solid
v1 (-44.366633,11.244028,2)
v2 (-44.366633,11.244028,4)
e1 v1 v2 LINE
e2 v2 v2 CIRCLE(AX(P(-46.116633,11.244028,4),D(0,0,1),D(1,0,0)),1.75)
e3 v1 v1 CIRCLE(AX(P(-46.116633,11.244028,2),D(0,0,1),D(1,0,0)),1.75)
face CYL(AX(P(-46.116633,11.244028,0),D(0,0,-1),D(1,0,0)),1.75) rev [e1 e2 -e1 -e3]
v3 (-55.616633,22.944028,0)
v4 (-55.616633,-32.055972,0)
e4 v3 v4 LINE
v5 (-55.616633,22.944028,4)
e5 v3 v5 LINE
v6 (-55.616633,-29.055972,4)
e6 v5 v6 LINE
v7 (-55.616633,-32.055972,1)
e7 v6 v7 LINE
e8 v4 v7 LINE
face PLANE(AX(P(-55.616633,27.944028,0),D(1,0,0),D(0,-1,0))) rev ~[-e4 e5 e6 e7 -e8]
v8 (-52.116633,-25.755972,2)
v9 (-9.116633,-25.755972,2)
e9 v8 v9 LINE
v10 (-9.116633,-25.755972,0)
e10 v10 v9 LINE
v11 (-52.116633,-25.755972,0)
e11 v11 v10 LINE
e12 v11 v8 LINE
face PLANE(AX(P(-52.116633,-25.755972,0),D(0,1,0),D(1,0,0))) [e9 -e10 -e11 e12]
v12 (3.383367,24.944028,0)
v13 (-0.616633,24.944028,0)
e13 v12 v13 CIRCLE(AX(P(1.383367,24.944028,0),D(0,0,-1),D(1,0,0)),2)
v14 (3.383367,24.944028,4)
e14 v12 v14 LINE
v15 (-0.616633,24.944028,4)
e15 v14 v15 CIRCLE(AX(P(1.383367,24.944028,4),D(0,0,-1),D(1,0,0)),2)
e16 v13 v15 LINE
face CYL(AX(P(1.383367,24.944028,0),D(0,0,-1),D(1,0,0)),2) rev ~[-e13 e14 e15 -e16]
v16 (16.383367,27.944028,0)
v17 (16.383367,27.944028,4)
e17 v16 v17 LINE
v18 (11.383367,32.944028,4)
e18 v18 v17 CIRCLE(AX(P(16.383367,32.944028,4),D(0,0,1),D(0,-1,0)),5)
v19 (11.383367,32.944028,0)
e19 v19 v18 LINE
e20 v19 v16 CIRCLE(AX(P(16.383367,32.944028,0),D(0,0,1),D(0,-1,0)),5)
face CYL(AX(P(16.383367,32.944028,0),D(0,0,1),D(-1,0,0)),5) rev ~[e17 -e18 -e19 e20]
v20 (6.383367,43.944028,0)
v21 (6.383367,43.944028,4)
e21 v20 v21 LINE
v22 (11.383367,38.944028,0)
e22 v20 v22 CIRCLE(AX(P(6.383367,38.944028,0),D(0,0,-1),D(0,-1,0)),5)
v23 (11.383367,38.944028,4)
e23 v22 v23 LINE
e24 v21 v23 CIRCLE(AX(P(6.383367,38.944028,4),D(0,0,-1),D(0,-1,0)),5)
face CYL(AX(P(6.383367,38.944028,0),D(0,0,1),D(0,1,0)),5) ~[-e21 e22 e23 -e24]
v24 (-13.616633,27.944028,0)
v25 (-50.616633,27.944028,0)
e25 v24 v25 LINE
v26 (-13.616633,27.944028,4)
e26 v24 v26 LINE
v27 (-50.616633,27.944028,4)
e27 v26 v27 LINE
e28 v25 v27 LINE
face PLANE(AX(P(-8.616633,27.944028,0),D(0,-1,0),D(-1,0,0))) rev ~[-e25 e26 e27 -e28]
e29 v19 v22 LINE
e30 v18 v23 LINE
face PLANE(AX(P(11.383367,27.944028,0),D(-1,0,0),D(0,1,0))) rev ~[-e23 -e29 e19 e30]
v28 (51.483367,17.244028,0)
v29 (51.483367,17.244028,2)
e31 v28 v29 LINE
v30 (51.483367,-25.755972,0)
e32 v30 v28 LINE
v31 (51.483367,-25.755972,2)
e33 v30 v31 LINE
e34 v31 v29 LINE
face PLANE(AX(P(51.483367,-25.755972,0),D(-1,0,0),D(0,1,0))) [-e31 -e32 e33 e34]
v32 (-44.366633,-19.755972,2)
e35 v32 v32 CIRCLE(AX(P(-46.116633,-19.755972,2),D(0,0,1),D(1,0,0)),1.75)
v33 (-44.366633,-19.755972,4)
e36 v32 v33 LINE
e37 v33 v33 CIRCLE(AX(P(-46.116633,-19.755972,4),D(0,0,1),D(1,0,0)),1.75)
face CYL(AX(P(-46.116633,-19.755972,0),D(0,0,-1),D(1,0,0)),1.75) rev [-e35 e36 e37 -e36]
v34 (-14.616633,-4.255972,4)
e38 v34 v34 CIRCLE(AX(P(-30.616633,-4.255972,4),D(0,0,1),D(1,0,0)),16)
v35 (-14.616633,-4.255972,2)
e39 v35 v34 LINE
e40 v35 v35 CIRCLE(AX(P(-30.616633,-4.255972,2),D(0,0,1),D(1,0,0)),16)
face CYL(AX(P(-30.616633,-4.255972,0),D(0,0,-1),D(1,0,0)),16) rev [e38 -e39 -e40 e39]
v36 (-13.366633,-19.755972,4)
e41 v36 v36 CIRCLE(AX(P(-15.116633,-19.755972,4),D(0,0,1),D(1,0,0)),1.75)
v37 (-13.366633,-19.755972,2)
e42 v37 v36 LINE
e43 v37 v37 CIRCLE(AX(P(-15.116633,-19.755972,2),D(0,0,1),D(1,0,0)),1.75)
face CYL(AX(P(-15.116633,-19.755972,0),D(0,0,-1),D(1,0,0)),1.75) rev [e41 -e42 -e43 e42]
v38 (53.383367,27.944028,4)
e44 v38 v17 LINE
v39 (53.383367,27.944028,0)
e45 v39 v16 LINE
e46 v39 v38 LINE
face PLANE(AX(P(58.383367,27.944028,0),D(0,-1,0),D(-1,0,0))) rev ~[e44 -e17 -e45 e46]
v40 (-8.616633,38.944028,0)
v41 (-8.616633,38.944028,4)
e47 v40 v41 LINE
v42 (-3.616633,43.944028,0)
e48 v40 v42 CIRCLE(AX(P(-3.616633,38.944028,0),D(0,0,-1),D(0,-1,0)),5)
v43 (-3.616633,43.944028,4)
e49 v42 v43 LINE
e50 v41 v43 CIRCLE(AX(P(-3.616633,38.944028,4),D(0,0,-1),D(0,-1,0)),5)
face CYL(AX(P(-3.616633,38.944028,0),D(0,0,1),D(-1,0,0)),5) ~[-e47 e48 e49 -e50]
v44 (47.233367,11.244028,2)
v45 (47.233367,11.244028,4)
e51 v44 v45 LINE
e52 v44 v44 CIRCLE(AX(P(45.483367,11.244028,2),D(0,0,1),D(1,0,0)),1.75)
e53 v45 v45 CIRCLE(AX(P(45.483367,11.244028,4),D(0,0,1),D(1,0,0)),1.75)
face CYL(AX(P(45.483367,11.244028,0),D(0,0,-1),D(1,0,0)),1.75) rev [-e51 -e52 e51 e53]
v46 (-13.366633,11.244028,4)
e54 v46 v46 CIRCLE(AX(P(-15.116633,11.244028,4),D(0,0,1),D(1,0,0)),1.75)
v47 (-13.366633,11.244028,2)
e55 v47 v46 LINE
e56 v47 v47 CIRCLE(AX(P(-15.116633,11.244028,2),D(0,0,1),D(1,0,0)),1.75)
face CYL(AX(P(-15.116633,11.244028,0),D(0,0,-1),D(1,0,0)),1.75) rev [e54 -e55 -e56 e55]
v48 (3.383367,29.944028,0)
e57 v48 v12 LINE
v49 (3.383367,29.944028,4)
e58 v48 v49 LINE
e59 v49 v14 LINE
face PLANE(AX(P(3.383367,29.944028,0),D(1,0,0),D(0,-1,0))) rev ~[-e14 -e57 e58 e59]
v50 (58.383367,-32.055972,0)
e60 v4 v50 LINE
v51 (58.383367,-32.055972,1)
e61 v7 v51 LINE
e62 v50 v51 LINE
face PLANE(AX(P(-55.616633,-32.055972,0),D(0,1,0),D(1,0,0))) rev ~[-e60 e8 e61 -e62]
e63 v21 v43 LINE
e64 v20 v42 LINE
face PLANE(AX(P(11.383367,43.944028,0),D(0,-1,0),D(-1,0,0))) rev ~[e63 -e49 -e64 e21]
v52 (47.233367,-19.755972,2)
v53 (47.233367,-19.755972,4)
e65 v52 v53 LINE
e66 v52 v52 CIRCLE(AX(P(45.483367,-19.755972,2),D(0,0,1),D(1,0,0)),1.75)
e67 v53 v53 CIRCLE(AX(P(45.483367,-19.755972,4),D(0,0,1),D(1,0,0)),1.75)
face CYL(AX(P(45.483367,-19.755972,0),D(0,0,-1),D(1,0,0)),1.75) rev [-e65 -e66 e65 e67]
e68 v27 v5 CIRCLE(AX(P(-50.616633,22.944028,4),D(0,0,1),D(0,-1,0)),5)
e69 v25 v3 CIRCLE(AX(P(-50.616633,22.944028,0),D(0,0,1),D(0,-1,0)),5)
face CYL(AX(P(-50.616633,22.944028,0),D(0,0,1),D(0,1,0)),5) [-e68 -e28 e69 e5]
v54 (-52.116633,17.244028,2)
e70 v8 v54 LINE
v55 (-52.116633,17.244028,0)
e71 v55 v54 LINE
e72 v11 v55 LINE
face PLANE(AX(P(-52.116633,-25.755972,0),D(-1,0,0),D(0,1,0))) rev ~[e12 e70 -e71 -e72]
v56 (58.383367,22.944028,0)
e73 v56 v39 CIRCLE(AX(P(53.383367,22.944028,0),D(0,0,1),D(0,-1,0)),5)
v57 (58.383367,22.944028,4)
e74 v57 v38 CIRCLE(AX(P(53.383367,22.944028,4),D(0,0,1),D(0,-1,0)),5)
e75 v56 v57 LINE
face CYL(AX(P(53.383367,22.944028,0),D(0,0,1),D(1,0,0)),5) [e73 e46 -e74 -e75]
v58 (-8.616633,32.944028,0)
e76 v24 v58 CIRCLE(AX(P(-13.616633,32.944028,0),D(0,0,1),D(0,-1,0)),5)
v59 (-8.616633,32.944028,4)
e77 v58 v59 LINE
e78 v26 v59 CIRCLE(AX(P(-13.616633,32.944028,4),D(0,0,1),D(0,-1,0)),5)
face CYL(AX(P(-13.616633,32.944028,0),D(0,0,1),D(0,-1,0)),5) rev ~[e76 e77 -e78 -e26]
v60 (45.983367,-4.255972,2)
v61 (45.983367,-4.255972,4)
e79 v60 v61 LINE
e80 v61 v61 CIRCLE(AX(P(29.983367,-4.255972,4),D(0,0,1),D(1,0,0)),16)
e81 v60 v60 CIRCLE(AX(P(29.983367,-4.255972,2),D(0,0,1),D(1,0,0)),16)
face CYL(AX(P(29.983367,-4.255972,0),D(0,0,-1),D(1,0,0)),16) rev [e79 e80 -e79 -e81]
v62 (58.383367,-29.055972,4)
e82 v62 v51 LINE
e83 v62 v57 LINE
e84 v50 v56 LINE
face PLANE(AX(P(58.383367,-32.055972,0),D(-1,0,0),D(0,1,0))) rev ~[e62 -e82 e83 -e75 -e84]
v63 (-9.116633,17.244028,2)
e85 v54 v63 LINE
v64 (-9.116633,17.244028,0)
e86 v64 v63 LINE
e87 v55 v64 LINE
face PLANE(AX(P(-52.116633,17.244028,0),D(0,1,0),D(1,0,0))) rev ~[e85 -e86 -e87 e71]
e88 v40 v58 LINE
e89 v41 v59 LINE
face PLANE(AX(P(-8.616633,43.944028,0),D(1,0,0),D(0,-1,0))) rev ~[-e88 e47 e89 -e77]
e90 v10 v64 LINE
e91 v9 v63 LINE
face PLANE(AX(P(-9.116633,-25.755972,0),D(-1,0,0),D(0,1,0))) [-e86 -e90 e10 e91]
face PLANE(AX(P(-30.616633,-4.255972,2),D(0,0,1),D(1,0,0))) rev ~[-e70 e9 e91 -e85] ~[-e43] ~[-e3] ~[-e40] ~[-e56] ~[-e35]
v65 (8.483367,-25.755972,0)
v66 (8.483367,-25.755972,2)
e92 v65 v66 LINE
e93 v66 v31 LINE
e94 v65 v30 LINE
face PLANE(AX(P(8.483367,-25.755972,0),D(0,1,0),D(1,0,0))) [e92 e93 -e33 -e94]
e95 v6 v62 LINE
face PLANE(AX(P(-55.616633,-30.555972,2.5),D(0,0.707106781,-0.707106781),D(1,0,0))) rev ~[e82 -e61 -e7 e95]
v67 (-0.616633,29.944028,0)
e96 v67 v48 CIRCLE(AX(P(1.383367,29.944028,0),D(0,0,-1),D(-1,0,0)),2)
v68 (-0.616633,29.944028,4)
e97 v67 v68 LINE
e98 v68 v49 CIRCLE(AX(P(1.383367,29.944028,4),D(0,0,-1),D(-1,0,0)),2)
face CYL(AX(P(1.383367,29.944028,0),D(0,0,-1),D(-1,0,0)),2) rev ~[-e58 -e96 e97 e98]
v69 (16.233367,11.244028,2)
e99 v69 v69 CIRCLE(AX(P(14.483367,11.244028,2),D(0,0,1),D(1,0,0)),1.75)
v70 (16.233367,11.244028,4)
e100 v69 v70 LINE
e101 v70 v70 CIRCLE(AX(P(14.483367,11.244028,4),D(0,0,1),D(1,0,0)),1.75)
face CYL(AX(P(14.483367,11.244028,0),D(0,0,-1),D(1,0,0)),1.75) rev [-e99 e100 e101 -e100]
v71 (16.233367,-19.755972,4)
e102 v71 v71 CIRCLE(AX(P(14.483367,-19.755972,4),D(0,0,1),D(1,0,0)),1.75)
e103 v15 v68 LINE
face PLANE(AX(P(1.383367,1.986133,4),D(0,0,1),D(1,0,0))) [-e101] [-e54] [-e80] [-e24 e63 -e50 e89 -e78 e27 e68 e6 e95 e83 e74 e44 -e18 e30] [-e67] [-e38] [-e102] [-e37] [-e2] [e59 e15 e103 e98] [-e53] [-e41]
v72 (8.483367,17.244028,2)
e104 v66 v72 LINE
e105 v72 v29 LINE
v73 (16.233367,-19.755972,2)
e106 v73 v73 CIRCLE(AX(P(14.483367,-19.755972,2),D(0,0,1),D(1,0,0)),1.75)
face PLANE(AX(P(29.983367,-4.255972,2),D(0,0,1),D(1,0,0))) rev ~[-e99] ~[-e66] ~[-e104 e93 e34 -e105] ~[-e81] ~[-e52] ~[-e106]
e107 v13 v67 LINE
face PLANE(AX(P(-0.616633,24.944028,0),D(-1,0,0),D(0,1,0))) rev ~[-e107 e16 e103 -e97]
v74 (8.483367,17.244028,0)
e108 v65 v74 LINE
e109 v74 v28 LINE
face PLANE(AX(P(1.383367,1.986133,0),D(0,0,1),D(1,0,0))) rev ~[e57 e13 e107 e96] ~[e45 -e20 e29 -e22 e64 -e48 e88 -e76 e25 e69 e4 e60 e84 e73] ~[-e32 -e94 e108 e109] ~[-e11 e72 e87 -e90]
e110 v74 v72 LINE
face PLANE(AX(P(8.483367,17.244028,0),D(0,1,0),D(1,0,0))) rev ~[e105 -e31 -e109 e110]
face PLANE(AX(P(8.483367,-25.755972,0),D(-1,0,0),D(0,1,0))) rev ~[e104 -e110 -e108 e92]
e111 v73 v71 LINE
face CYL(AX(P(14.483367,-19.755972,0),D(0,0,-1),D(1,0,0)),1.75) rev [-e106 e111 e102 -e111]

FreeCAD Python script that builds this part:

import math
import FreeCAD as App
import Part
import Sketcher
from FreeCAD import Vector


def edges_at(feature, points):
    """Names of the edges that pass closest to the given points."""
    edges = feature.Shape.Edges
    near = lambda p: min(range(len(edges)), key=lambda i: edges[i].distToShape(Part.Vertex(*p))[0])
    return sorted({f"Edge{near(p) + 1}" for p in points})


def add_polygon(sketch, points):
    """Adds a closed chain of lines whose ends are joined by coincident constraints."""
    first, n = sketch.GeometryCount, len(points)
    for a, b in zip(points, points[1:] + points[:1]):
        sketch.addGeometry(Part.LineSegment(App.Vector(*a, 0), App.Vector(*b, 0)), False)
    for i in range(n):
        sketch.addConstraint(Sketcher.Constraint("Coincident", first + i, 2, first + (i + 1) % n, 1))

doc = App.newDocument("Part")
body = doc.addObject("PartDesign::Body", "Body")

sketch1 = body.newObject("Sketcher::SketchObject", "Sketch")
sketch1.AttachmentSupport = (doc.getObject("XY_Plane"), [""])
sketch1.MapMode = "FlatFace"
add_polygon(sketch1, [(-8.616633, 27.944028), (-55.616633, 27.944028), (-55.616633, -32.055972), (58.383367, -32.055972), (58.383367, 27.944028), (11.383367, 27.944028), (11.383367, 43.944028), (-8.616633, 43.944028)])
sketch1.addGeometry(Part.Circle(Vector(-46.116633, -19.755972, 0), Vector(0, 0, 1), 1.75), False)
sketch1.addGeometry(Part.Circle(Vector(-15.116633, -19.755972, 0), Vector(0, 0, 1), 1.75), False)
sketch1.addGeometry(Part.Circle(Vector(-30.616633, -4.255972, 0), Vector(0, 0, 1), 16), False)
sketch1.addGeometry(Part.Circle(Vector(14.483367, -19.755972, 0), Vector(0, 0, 1), 1.75), False)
sketch1.addGeometry(Part.Circle(Vector(45.483367, -19.755972, 0), Vector(0, 0, 1), 1.75), False)
sketch1.addGeometry(Part.Circle(Vector(29.983367, -4.255972, 0), Vector(0, 0, 1), 16), False)
sketch1.addGeometry(Part.Circle(Vector(-46.116633, 11.244028, 0), Vector(0, 0, 1), 1.75), False)
sketch1.addGeometry(Part.Circle(Vector(-15.116633, 11.244028, 0), Vector(0, 0, 1), 1.75), False)
sketch1.addGeometry(Part.Circle(Vector(14.483367, 11.244028, 0), Vector(0, 0, 1), 1.75), False)
sketch1.addGeometry(Part.Circle(Vector(45.483367, 11.244028, 0), Vector(0, 0, 1), 1.75), False)
sketch1.addGeometry(Part.LineSegment(Vector(-0.616633, 24.944028, 0), Vector(-0.616633, 29.944028, 0)), False)
sketch1.addGeometry(Part.ArcOfCircle(Part.Circle(Vector(1.383367, 29.944028, 0), Vector(0, 0, 1), 2), math.radians(0), math.radians(180)), False)
sketch1.addGeometry(Part.LineSegment(Vector(3.383367, 29.944028, 0), Vector(3.383367, 24.944028, 0)), False)
sketch1.addGeometry(Part.ArcOfCircle(Part.Circle(Vector(1.383367, 24.944028, 0), Vector(0, 0, 1), 2), math.radians(180), math.radians(360)), False)
sketch1.addConstraint([
    Sketcher.Constraint("Tangent", 18, 2, 19, 2),
    Sketcher.Constraint("Tangent", 19, 1, 20, 1),
    Sketcher.Constraint("Tangent", 20, 2, 21, 2),
    Sketcher.Constraint("Tangent", 21, 1, 18, 1),
    Sketcher.Constraint("Horizontal", 0),
    Sketcher.Constraint("Vertical", 1),
    Sketcher.Constraint("Horizontal", 2),
    Sketcher.Constraint("Vertical", 3),
    Sketcher.Constraint("Horizontal", 4),
    Sketcher.Constraint("Vertical", 5),
    Sketcher.Constraint("Horizontal", 6),
    Sketcher.Constraint("Vertical", 7),
    Sketcher.Constraint("Vertical", 18),
    Sketcher.Constraint("Vertical", 20),
    Sketcher.Constraint("Equal", 8, 9),
    Sketcher.Constraint("Equal", 9, 11),
    Sketcher.Constraint("Equal", 11, 12),
    Sketcher.Constraint("Equal", 10, 13),
    Sketcher.Constraint("Equal", 12, 14),
    Sketcher.Constraint("Equal", 14, 15),
    Sketcher.Constraint("Equal", 15, 16),
    Sketcher.Constraint("Equal", 16, 17),
    Sketcher.Constraint("Horizontal", 8, 3, 9, 3),
    Sketcher.Constraint("Horizontal", 9, 3, 11, 3),
    Sketcher.Constraint("Horizontal", 11, 3, 12, 3),
    Sketcher.Constraint("Horizontal", 10, 3, 13, 3),
    Sketcher.Constraint("Horizontal", 14, 3, 15, 3),
    Sketcher.Constraint("Horizontal", 15, 3, 16, 3),
    Sketcher.Constraint("Horizontal", 16, 3, 17, 3),
    Sketcher.Constraint("Horizontal", 0, 2, 3, 2),
    Sketcher.Constraint("Vertical", 8, 3, 14, 3),
    Sketcher.Constraint("Vertical", 9, 3, 15, 3),
    Sketcher.Constraint("Vertical", 11, 3, 16, 3),
    Sketcher.Constraint("Vertical", 12, 3, 17, 3),
    Sketcher.Constraint("Equal", 0, 4),
    Sketcher.Constraint("Diameter", 10, 32.0),
    Sketcher.Constraint("Radius", 19, 2.0),
    Sketcher.Constraint("Diameter", 8, 3.5),
    Sketcher.Constraint("DistanceX", 0, 2, 0, 1, 47.0),
    Sketcher.Constraint("DistanceX", 2, 1, 2, 2, 114.0),
    Sketcher.Constraint("DistanceY", 1, 2, 1, 1, 60.0),
    Sketcher.Constraint("DistanceY", 5, 1, 5, 2, 16.0),
    Sketcher.Constraint("DistanceY", 18, 1, 18, 2, 5.0),
    Sketcher.Constraint("DistanceX", 8, 3, 9, 3, 31.0),
    Sketcher.Constraint("DistanceX", 11, 3, 12, 3, 31.0),
    Sketcher.Constraint("DistanceY", 8, 3, 14, 3, 31.0),
    Sketcher.Constraint("DistanceX", 10, 3, 19, 3, 32.0),
    Sketcher.Constraint("DistanceX", 0, 2, 10, 3, 25.0),
    Sketcher.Constraint("DistanceY", 0, 2, 19, 3, 2.0),
    Sketcher.Constraint("DistanceX", 10, 3, 9, 3, 15.5),
    Sketcher.Constraint("DistanceY", 9, 3, 10, 3, 15.5),
    Sketcher.Constraint("DistanceX", 9, 3, 11, 3, 29.6),
    Sketcher.Constraint("DistanceX", 11, 3, 13, 3, 15.5),
    Sketcher.Constraint("DistanceY", 16, 3, 19, 3, 18.7),
    Sketcher.Constraint("DistanceX", 8, 3, -1, 1, 46.116633),
    Sketcher.Constraint("DistanceY", 8, 3, -1, 1, 19.755972),
])
pad1 = body.newObject("PartDesign::Pad", "Pad")
pad1.Profile = sketch1
pad1.Length = 4
doc.recompute()

fillet = body.newObject("PartDesign::Fillet", "Fillet")
fillet.Base = (pad1, edges_at(pad1, [
    (-8.617, 43.944, 2),
    (-8.617, 27.944, 2),
    (-55.617, 27.944, 2),
    (11.383, 43.944, 2),
    (11.383, 27.944, 2),
    (58.383, 27.944, 2),
]))
fillet.Radius = 5
doc.recompute()

chamfer = body.newObject("PartDesign::Chamfer", "Chamfer")
chamfer.Base = (fillet, edges_at(fillet, [(1.383, -32.056, 4)]))
chamfer.Size = 3

sketch2 = body.newObject("Sketcher::SketchObject", "Sketch001")
sketch2.AttachmentSupport = (doc.getObject("XY_Plane"), [""])
sketch2.MapMode = "FlatFace"
add_polygon(sketch2, [(-52.116633, 17.244028), (-52.116633, -25.755972), (-9.116633, -25.755972), (-9.116633, 17.244028)])
sketch2.addGeometry(Part.Circle(Vector(-46.116633, -19.755972, 0), Vector(0, 0, 1), 1.75), False)
sketch2.addGeometry(Part.Circle(Vector(-15.116633, -19.755972, 0), Vector(0, 0, 1), 1.75), False)
sketch2.addGeometry(Part.Circle(Vector(-46.116633, 11.244028, 0), Vector(0, 0, 1), 1.75), False)
sketch2.addGeometry(Part.Circle(Vector(-30.616633, -4.255972, 0), Vector(0, 0, 1), 16), False)
sketch2.addGeometry(Part.Circle(Vector(-15.116633, 11.244028, 0), Vector(0, 0, 1), 1.75), False)
add_polygon(sketch2, [(8.483367, 17.244028), (8.483367, -25.755972), (51.483367, -25.755972), (51.483367, 17.244028)])
sketch2.addGeometry(Part.Circle(Vector(14.483367, -19.755972, 0), Vector(0, 0, 1), 1.75), False)
sketch2.addGeometry(Part.Circle(Vector(45.483367, -19.755972, 0), Vector(0, 0, 1), 1.75), False)
sketch2.addGeometry(Part.Circle(Vector(14.483367, 11.244028, 0), Vector(0, 0, 1), 1.75), False)
sketch2.addGeometry(Part.Circle(Vector(29.983367, -4.255972, 0), Vector(0, 0, 1), 16), False)
sketch2.addGeometry(Part.Circle(Vector(45.483367, 11.244028, 0), Vector(0, 0, 1), 1.75), False)
sketch2.addConstraint([
    Sketcher.Constraint("Vertical", 0),
    Sketcher.Constraint("Horizontal", 1),
    Sketcher.Constraint("Vertical", 2),
    Sketcher.Constraint("Horizontal", 3),
    Sketcher.Constraint("Vertical", 9),
    Sketcher.Constraint("Horizontal", 10),
    Sketcher.Constraint("Vertical", 11),
    Sketcher.Constraint("Horizontal", 12),
    Sketcher.Constraint("Equal", 4, 5),
    Sketcher.Constraint("Equal", 5, 6),
    Sketcher.Constraint("Equal", 6, 8),
    Sketcher.Constraint("Equal", 8, 13),
    Sketcher.Constraint("Equal", 13, 14),
    Sketcher.Constraint("Equal", 14, 15),
    Sketcher.Constraint("Equal", 7, 16),
    Sketcher.Constraint("Equal", 15, 17),
    Sketcher.Constraint("Horizontal", 4, 3, 5, 3),
    Sketcher.Constraint("Horizontal", 6, 3, 8, 3),
    Sketcher.Constraint("Horizontal", 5, 3, 13, 3),
    Sketcher.Constraint("Horizontal", 13, 3, 14, 3),
    Sketcher.Constraint("Horizontal", 8, 3, 15, 3),
    Sketcher.Constraint("Horizontal", 7, 3, 16, 3),
    Sketcher.Constraint("Horizontal", 15, 3, 17, 3),
    Sketcher.Constraint("Horizontal", 1, 2, 9, 2),
    Sketcher.Constraint("Horizontal", 3, 2, 11, 2),
    Sketcher.Constraint("Vertical", 4, 3, 6, 3),
    Sketcher.Constraint("Vertical", 5, 3, 8, 3),
    Sketcher.Constraint("Vertical", 13, 3, 15, 3),
    Sketcher.Constraint("Vertical", 14, 3, 17, 3),
    Sketcher.Constraint("Equal", 3, 10),
    Sketcher.Constraint("Equal", 12, 0),
    Sketcher.Constraint("Diameter", 7, 32.0),
    Sketcher.Constraint("Diameter", 4, 3.5),
    Sketcher.Constraint("DistanceX", 1, 1, 1, 2, 43.0),
    Sketcher.Constraint("DistanceX", 4, 3, 5, 3, 31.0),
    Sketcher.Constraint("DistanceY", 4, 3, 6, 3, 31.0),
    Sketcher.Constraint("DistanceX", 13, 3, 14, 3, 31.0),
    Sketcher.Constraint("DistanceX", 0, 2, 4, 3, 6.0),
    Sketcher.Constraint("DistanceY", 0, 2, 4, 3, 6.0),
    Sketcher.Constraint("DistanceX", 9, 2, 13, 3, 6.0),
    Sketcher.Constraint("DistanceX", 7, 3, 5, 3, 15.5),
    Sketcher.Constraint("DistanceY", 5, 3, 7, 3, 15.5),
    Sketcher.Constraint("DistanceX", 5, 3, 13, 3, 29.6),
    Sketcher.Constraint("DistanceX", 13, 3, 16, 3, 15.5),
    Sketcher.Constraint("DistanceX", 4, 3, -1, 1, 46.116633),
    Sketcher.Constraint("DistanceY", 4, 3, -1, 1, 19.755972),
])
pocket1 = body.newObject("PartDesign::Pocket", "Pocket")
pocket1.Profile = sketch2
pocket1.Type = "TwoLengths"
pocket1.Length = 4
pocket1.Length2 = 2

doc.recompute()
